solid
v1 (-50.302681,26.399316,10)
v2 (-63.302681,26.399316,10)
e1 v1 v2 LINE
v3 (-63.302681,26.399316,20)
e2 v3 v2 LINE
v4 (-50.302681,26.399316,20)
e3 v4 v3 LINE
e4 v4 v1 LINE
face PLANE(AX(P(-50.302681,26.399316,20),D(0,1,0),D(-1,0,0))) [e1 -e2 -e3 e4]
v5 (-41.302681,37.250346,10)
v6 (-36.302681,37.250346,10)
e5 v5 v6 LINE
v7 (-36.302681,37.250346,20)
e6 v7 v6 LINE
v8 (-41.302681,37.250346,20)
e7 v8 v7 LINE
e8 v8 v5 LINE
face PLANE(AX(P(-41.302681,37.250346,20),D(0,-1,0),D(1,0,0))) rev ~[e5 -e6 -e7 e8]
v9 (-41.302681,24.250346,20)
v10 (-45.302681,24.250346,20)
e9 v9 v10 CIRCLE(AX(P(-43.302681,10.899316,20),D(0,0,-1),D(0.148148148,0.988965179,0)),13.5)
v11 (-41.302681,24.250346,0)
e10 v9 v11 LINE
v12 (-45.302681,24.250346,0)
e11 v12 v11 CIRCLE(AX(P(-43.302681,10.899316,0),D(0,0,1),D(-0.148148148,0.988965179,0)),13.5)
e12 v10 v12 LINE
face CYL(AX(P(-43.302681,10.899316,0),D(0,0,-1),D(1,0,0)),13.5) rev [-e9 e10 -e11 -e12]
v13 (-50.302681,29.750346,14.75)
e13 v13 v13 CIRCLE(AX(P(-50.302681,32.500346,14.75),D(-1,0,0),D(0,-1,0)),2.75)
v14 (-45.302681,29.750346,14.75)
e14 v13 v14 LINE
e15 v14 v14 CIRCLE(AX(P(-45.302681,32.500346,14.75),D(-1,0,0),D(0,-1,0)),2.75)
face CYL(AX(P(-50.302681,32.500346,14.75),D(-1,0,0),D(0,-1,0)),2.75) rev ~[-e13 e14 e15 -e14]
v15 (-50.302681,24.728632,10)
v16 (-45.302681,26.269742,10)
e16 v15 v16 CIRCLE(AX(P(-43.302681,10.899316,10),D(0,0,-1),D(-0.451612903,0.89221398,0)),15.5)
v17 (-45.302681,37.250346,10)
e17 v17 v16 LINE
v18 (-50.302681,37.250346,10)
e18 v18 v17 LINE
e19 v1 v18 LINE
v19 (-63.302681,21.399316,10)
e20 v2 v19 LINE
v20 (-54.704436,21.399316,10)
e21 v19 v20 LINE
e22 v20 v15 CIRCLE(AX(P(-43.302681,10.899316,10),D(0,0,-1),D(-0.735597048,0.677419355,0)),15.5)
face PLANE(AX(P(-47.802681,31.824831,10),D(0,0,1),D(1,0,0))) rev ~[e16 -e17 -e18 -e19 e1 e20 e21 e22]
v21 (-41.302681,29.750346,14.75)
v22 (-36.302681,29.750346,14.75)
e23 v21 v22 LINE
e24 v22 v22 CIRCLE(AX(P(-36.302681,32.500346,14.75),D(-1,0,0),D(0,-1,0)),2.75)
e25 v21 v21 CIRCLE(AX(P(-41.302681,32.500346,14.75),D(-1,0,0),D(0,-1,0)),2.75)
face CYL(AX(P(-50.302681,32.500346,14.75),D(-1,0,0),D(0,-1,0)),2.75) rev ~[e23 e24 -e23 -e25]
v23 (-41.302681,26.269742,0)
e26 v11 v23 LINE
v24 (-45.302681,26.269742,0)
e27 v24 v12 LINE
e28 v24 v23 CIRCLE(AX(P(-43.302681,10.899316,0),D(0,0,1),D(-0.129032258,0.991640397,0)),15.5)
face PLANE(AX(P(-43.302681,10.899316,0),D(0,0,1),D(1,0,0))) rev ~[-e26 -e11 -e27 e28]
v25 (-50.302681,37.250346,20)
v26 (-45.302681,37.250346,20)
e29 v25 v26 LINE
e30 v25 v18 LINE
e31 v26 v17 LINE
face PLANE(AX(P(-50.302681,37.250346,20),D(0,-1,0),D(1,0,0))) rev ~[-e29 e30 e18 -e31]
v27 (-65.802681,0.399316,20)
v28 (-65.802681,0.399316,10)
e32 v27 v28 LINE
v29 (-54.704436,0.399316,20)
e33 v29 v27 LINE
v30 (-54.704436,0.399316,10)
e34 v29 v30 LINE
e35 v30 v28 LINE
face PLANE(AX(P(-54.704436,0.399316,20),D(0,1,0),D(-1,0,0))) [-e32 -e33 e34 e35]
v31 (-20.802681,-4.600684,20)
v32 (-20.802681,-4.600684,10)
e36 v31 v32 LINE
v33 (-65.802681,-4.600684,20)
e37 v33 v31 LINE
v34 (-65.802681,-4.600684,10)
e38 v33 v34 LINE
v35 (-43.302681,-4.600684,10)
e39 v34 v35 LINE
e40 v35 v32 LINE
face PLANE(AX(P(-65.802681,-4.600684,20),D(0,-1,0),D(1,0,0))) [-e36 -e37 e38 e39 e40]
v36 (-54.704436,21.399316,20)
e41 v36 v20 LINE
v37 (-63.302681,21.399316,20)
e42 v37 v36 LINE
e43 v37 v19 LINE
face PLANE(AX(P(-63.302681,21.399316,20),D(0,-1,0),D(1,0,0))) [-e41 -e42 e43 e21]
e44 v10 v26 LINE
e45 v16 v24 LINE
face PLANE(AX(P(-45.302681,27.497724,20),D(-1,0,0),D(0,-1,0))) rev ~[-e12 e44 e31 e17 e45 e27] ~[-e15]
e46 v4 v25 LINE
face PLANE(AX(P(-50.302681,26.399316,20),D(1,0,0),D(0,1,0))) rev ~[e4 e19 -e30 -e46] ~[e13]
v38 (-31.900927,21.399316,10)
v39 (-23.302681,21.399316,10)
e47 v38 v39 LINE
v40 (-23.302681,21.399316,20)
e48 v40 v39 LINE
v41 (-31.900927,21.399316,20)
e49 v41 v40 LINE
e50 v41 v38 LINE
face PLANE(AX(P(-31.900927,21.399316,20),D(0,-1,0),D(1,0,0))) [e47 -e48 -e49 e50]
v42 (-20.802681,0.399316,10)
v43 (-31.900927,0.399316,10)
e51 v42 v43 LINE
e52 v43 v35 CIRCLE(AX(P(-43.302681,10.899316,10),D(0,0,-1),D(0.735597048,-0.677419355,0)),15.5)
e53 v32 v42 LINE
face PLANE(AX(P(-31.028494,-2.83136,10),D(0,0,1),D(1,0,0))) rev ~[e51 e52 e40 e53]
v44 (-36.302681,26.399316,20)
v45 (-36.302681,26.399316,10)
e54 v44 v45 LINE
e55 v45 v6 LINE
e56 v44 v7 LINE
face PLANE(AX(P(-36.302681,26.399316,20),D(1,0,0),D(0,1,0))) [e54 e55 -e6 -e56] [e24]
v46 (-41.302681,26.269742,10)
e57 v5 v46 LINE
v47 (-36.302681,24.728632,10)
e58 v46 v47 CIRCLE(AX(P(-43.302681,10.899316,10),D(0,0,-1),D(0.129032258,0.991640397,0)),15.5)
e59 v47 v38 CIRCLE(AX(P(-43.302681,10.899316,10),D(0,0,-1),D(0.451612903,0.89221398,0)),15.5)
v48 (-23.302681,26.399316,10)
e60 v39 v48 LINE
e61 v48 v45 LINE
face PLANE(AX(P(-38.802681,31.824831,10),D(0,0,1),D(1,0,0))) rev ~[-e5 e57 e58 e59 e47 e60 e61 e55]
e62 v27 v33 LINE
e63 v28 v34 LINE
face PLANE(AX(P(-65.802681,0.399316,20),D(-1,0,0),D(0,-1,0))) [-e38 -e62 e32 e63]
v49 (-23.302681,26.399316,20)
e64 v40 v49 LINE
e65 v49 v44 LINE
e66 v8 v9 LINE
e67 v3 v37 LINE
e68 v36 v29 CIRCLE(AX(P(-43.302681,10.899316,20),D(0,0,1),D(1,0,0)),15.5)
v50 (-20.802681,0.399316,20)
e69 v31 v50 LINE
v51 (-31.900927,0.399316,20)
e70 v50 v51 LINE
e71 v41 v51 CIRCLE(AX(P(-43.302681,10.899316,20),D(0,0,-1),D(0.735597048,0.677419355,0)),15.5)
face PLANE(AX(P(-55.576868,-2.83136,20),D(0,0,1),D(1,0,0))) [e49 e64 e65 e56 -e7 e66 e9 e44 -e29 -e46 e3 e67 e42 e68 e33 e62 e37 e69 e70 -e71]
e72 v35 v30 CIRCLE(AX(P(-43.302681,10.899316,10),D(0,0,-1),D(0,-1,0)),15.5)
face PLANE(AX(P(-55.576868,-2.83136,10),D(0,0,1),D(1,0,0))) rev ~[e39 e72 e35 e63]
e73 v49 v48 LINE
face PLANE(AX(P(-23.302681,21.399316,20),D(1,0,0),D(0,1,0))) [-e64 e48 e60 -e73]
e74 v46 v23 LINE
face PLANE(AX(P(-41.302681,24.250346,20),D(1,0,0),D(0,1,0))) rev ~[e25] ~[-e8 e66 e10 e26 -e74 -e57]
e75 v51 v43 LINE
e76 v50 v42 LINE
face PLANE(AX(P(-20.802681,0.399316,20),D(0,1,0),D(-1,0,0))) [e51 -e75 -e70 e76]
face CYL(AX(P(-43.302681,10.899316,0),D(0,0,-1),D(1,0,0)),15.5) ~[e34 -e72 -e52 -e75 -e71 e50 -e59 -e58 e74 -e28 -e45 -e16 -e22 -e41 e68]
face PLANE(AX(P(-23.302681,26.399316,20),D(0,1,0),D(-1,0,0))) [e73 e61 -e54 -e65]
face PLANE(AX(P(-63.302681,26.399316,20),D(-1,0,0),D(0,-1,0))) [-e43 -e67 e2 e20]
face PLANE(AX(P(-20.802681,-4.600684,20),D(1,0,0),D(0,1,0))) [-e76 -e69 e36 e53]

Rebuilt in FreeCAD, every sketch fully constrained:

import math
import FreeCAD as App
import Part
import Sketcher

doc = App.newDocument("Part")
body = doc.addObject("PartDesign::Body", "Body")

sketch1 = doc.addObject("Sketcher::SketchObject", "Sketch")
body.addObject(sketch1)
sketch1.AttachmentSupport = (doc.XY_Plane, [""])
sketch1.MapMode = "FlatFace"
sketch1.addGeometry(Part.Circle(App.Vector(-43, 11, 0), App.Vector(0, 0, 1), 16), False)
sketch1.addGeometry(Part.Circle(App.Vector(-43, 11, 0), App.Vector(0, 0, 1), 14), False)
sketch1.addConstraint(Sketcher.Constraint("Coincident", 1, 3, 0, 3))
sketch1.addConstraint(Sketcher.Constraint("Diameter", 0, 31.0))
sketch1.addConstraint(Sketcher.Constraint("Diameter", 1, 27.0))
sketch1.addConstraint(Sketcher.Constraint("DistanceX", 0, 3, -1, 1, 43.302681))
sketch1.addConstraint(Sketcher.Constraint("DistanceY", -1, 1, 0, 3, 10.899316))
pad1 = doc.addObject("PartDesign::Pad", "Pad")
body.addObject(pad1)
pad1.Profile = sketch1
pad1.Length = 20

sketch2 = doc.addObject("Sketcher::SketchObject", "Sketch001")
body.addObject(sketch2)
sketch2.AttachmentSupport = (doc.XY_Plane, [""])
sketch2.MapMode = "FlatFace"
sketch2.AttachmentOffset = App.Placement(App.Vector(0, 0, 20), App.Rotation())
sketch2.addGeometry(Part.LineSegment(App.Vector(-50, 37, 0), App.Vector(-50, 26, 0)), False)
sketch2.addGeometry(Part.LineSegment(App.Vector(-50, 26, 0), App.Vector(-63, 26, 0)), False)
sketch2.addGeometry(Part.LineSegment(App.Vector(-63, 26, 0), App.Vector(-63, 21, 0)), False)
sketch2.addGeometry(Part.LineSegment(App.Vector(-63, 21, 0), App.Vector(-55, 21, 0)), False)
sketch2.addGeometry(Part.ArcOfCircle(Part.Circle(App.Vector(-43, 11, 0), App.Vector(0, 0, 1), 16), math.radians(117), math.radians(137)), False)
sketch2.addGeometry(Part.ArcOfCircle(Part.Circle(App.Vector(-43, 11, 0), App.Vector(0, 0, 1), 15), math.radians(97.41), math.radians(116.85)), False)
sketch2.addGeometry(Part.LineSegment(App.Vector(-45, 26, 0), App.Vector(-45, 37, 0)), False)
sketch2.addGeometry(Part.LineSegment(App.Vector(-45, 37, 0), App.Vector(-50, 37, 0)), False)
sketch2.addGeometry(Part.LineSegment(App.Vector(-41, 37, 0), App.Vector(-41, 26, 0)), False)
sketch2.addGeometry(Part.ArcOfCircle(Part.Circle(App.Vector(-43, 11, 0), App.Vector(0, 0, 1), 15), math.radians(63.15), math.radians(82.59)), False)
sketch2.addGeometry(Part.ArcOfCircle(Part.Circle(App.Vector(-43, 11, 0), App.Vector(0, 0, 1), 15), math.radians(43), math.radians(63)), False)
sketch2.addGeometry(Part.LineSegment(App.Vector(-32, 21, 0), App.Vector(-23, 21, 0)), False)
sketch2.addGeometry(Part.LineSegment(App.Vector(-23, 21, 0), App.Vector(-23, 26, 0)), False)
sketch2.addGeometry(Part.LineSegment(App.Vector(-23, 26, 0), App.Vector(-36, 26, 0)), False)
sketch2.addGeometry(Part.LineSegment(App.Vector(-36, 26, 0), App.Vector(-36, 37, 0)), False)
sketch2.addGeometry(Part.LineSegment(App.Vector(-36, 37, 0), App.Vector(-41, 37, 0)), False)
sketch2.addGeometry(Part.ArcOfCircle(Part.Circle(App.Vector(-43, 11, 0), App.Vector(0, 0, 1), 16), math.radians(-137), math.radians(-90)), False)
sketch2.addGeometry(Part.LineSegment(App.Vector(-55, 0, 0), App.Vector(-66, 0, 0)), False)
sketch2.addGeometry(Part.LineSegment(App.Vector(-66, 0, 0), App.Vector(-66, -5, 0)), False)
sketch2.addGeometry(Part.LineSegment(App.Vector(-66, -5, 0), App.Vector(-43, -5, 0)), False)
sketch2.addGeometry(Part.ArcOfCircle(Part.Circle(App.Vector(-43, 11, 0), App.Vector(0, 0, 1), 16), math.radians(-90), math.radians(-43)), False)
sketch2.addGeometry(Part.LineSegment(App.Vector(-43, -5, 0), App.Vector(-21, -5, 0)), False)
sketch2.addGeometry(Part.LineSegment(App.Vector(-21, -5, 0), App.Vector(-21, 0, 0)), False)
sketch2.addGeometry(Part.LineSegment(App.Vector(-21, 0, 0), App.Vector(-32, 0, 0)), False)
sketch2.addConstraint(Sketcher.Constraint("Coincident", 0, 2, 1, 1))
sketch2.addConstraint(Sketcher.Constraint("Coincident", 1, 2, 2, 1))
sketch2.addConstraint(Sketcher.Constraint("Coincident", 2, 2, 3, 1))
sketch2.addConstraint(Sketcher.Constraint("Coincident", 3, 2, 4, 2))
sketch2.addConstraint(Sketcher.Constraint("Tangent", 4, 1, 5, 2))
sketch2.addConstraint(Sketcher.Constraint("Coincident", 5, 1, 6, 1))
sketch2.addConstraint(Sketcher.Constraint("Coincident", 6, 2, 7, 1))
sketch2.addConstraint(Sketcher.Constraint("Coincident", 7, 2, 0, 1))
sketch2.addConstraint(Sketcher.Constraint("Coincident", 8, 2, 9, 2))
sketch2.addConstraint(Sketcher.Constraint("Tangent", 9, 1, 10, 2))
sketch2.addConstraint(Sketcher.Constraint("Coincident", 10, 1, 11, 1))
sketch2.addConstraint(Sketcher.Constraint("Coincident", 11, 2, 12, 1))
sketch2.addConstraint(Sketcher.Constraint("Coincident", 12, 2, 13, 1))
sketch2.addConstraint(Sketcher.Constraint("Coincident", 13, 2, 14, 1))
sketch2.addConstraint(Sketcher.Constraint("Coincident", 14, 2, 15, 1))
sketch2.addConstraint(Sketcher.Constraint("Coincident", 15, 2, 8, 1))
sketch2.addConstraint(Sketcher.Constraint("Coincident", 16, 1, 17, 1))
sketch2.addConstraint(Sketcher.Constraint("Coincident", 17, 2, 18, 1))
sketch2.addConstraint(Sketcher.Constraint("Coincident", 18, 2, 19, 1))
sketch2.addConstraint(Sketcher.Constraint("Tangent", 19, 2, 16, 2))
sketch2.addConstraint(Sketcher.Constraint("Tangent", 20, 1, 21, 1))
sketch2.addConstraint(Sketcher.Constraint("Coincident", 21, 2, 22, 1))
sketch2.addConstraint(Sketcher.Constraint("Coincident", 22, 2, 23, 1))
sketch2.addConstraint(Sketcher.Constraint("Coincident", 23, 2, 20, 2))
sketch2.addConstraint(Sketcher.Constraint("Vertical", 0))
sketch2.addConstraint(Sketcher.Constraint("Horizontal", 1))
sketch2.addConstraint(Sketcher.Constraint("Vertical", 2))
sketch2.addConstraint(Sketcher.Constraint("Horizontal", 3))
sketch2.addConstraint(Sketcher.Constraint("Vertical", 6))
sketch2.addConstraint(Sketcher.Constraint("Horizontal", 7))
sketch2.addConstraint(Sketcher.Constraint("Vertical", 8))
sketch2.addConstraint(Sketcher.Constraint("Horizontal", 11))
sketch2.addConstraint(Sketcher.Constraint("Vertical", 12))
sketch2.addConstraint(Sketcher.Constraint("Horizontal", 13))
sketch2.addConstraint(Sketcher.Constraint("Vertical", 14))
sketch2.addConstraint(Sketcher.Constraint("Horizontal", 15))
sketch2.addConstraint(Sketcher.Constraint("Horizontal", 17))
sketch2.addConstraint(Sketcher.Constraint("Vertical", 18))
sketch2.addConstraint(Sketcher.Constraint("Horizontal", 19))
sketch2.addConstraint(Sketcher.Constraint("Horizontal", 21))
sketch2.addConstraint(Sketcher.Constraint("Vertical", 22))
sketch2.addConstraint(Sketcher.Constraint("Horizontal", 23))
sketch2.addConstraint(Sketcher.Constraint("Coincident", 9, 3, 4, 3))
sketch2.addConstraint(Sketcher.Constraint("Coincident", 16, 3, 4, 3))
sketch2.addConstraint(Sketcher.Constraint("Coincident", 20, 3, 4, 3))
sketch2.addConstraint(Sketcher.Constraint("Equal", 4, 5))
sketch2.addConstraint(Sketcher.Constraint("Equal", 5, 9))
sketch2.addConstraint(Sketcher.Constraint("Equal", 9, 10))
sketch2.addConstraint(Sketcher.Constraint("Equal", 10, 16))
sketch2.addConstraint(Sketcher.Constraint("Equal", 16, 20))
sketch2.addConstraint(Sketcher.Constraint("Horizontal", 5, 1, 8, 2))
sketch2.addConstraint(Sketcher.Constraint("Horizontal", 4, 1, 9, 1))
sketch2.addConstraint(Sketcher.Constraint("Horizontal", 3, 2, 10, 1))
sketch2.addConstraint(Sketcher.Constraint("Horizontal", 1, 2, 12, 2))
sketch2.addConstraint(Sketcher.Constraint("Horizontal", 7, 2, 14, 2))
sketch2.addConstraint(Sketcher.Constraint("Horizontal", 17, 2, 22, 2))
sketch2.addConstraint(Sketcher.Constraint("Vertical", 0, 2, 4, 1))
sketch2.addConstraint(Sketcher.Constraint("Vertical", 9, 1, 13, 2))
sketch2.addConstraint(Sketcher.Constraint("Vertical", 3, 2, 16, 1))
sketch2.addConstraint(Sketcher.Constraint("Equal", 3, 11))
sketch2.addConstraint(Sketcher.Constraint("Equal", 19, 21))
sketch2.addConstraint(Sketcher.Constraint("Equal", 15, 2))
sketch2.addConstraint(Sketcher.Constraint("Equal", 12, 18))
sketch2.addConstraint(Sketcher.Constraint("Radius", 4, 15.5))
sketch2.addConstraint(Sketcher.Constraint("DistanceX", 1, 2, 1, 1, 13.0))
sketch2.addConstraint(Sketcher.Constraint("DistanceX", 7, 2, 7, 1, 5.0))
sketch2.addConstraint(Sketcher.Constraint("DistanceX", 19, 1, 19, 2, 22.5))
sketch2.addConstraint(Sketcher.Constraint("DistanceX", 0, 2, 9, 3, 7.0))
sketch2.addConstraint(Sketcher.Constraint("DistanceY", 0, 2, 0, 1, 10.85103))
sketch2.addConstraint(Sketcher.Constraint("DistanceX", 4, 3, -1, 1, 43.302681))
sketch2.addConstraint(Sketcher.Constraint("DistanceY", -1, 1, 5, 1, 26.269742))
pad2 = doc.addObject("PartDesign::Pad", "Pad001")
body.addObject(pad2)
pad2.Profile = sketch2
pad2.Length = 10
pad2.Reversed = True

sketch3 = doc.addObject("Sketcher::SketchObject", "Sketch002")
body.addObject(sketch3)
sketch3.AttachmentSupport = (doc.XY_Plane, [""])
sketch3.MapMode = "FlatFace"
sketch3.AttachmentOffset = App.Placement(App.Vector(0, 0, 20), App.Rotation())
sketch3.addGeometry(Part.LineSegment(App.Vector(-41.3, 27.5, 0), App.Vector(-45.3, 27.5, 0)), False)
sketch3.addGeometry(Part.LineSegment(App.Vector(-45.3, 27.5, 0), App.Vector(-45.3, 24.3, 0)), False)
sketch3.addGeometry(Part.ArcOfCircle(Part.Circle(App.Vector(-43.3, 10.9, 0), App.Vector(0, 0, 1), 13.5), math.radians(81.48), math.radians(98.52)), False)
sketch3.addGeometry(Part.LineSegment(App.Vector(-41.3, 24.3, 0), App.Vector(-41.3, 27.5, 0)), False)
sketch3.addConstraint(Sketcher.Constraint("Coincident", 0, 2, 1, 1))
sketch3.addConstraint(Sketcher.Constraint("Coincident", 1, 2, 2, 2))
sketch3.addConstraint(Sketcher.Constraint("Coincident", 2, 1, 3, 1))
sketch3.addConstraint(Sketcher.Constraint("Coincident", 3, 2, 0, 1))
sketch3.addConstraint(Sketcher.Constraint("Horizontal", 0))
sketch3.addConstraint(Sketcher.Constraint("Vertical", 1))
sketch3.addConstraint(Sketcher.Constraint("Vertical", 3))
sketch3.addConstraint(Sketcher.Constraint("Horizontal", 1, 2, 2, 1))
sketch3.addConstraint(Sketcher.Constraint("Radius", 2, 13.5))
sketch3.addConstraint(Sketcher.Constraint("DistanceX", 0, 2, 0, 1, 4.0))
sketch3.addConstraint(Sketcher.Constraint("DistanceY", 1, 2, 1, 1, 3.247378))
sketch3.addConstraint(Sketcher.Constraint("DistanceX", 2, 3, -1, 1, 43.302681))
sketch3.addConstraint(Sketcher.Constraint("DistanceY", -1, 1, 2, 3, 10.899316))
pocket1 = doc.addObject("PartDesign::Pocket", "Pocket")
body.addObject(pocket1)
pocket1.Profile = sketch3
pocket1.Length = 25

sketch4 = doc.addObject("Sketcher::SketchObject", "Sketch003")
body.addObject(sketch4)
sketch4.AttachmentSupport = (doc.YZ_Plane, [""])
sketch4.MapMode = "FlatFace"
sketch4.AttachmentOffset = App.Placement(App.Vector(0, 0, -50.302681), App.Rotation())
sketch4.addGeometry(Part.Circle(App.Vector(32.5, 14.8, 0), App.Vector(0, 0, 1), 2.8), False)
sketch4.addConstraint(Sketcher.Constraint("Diameter", 0, 5.5))
sketch4.addConstraint(Sketcher.Constraint("DistanceY", -1, 1, 0, 3, 14.75))
sketch4.addConstraint(Sketcher.Constraint("DistanceX", -1, 1, 0, 3, 32.500346))
pocket2 = doc.addObject("PartDesign::Pocket", "Pocket001")
body.addObject(pocket2)
pocket2.Profile = sketch4
pocket2.Length = 15
pocket2.Reversed = True

doc.recompute()
